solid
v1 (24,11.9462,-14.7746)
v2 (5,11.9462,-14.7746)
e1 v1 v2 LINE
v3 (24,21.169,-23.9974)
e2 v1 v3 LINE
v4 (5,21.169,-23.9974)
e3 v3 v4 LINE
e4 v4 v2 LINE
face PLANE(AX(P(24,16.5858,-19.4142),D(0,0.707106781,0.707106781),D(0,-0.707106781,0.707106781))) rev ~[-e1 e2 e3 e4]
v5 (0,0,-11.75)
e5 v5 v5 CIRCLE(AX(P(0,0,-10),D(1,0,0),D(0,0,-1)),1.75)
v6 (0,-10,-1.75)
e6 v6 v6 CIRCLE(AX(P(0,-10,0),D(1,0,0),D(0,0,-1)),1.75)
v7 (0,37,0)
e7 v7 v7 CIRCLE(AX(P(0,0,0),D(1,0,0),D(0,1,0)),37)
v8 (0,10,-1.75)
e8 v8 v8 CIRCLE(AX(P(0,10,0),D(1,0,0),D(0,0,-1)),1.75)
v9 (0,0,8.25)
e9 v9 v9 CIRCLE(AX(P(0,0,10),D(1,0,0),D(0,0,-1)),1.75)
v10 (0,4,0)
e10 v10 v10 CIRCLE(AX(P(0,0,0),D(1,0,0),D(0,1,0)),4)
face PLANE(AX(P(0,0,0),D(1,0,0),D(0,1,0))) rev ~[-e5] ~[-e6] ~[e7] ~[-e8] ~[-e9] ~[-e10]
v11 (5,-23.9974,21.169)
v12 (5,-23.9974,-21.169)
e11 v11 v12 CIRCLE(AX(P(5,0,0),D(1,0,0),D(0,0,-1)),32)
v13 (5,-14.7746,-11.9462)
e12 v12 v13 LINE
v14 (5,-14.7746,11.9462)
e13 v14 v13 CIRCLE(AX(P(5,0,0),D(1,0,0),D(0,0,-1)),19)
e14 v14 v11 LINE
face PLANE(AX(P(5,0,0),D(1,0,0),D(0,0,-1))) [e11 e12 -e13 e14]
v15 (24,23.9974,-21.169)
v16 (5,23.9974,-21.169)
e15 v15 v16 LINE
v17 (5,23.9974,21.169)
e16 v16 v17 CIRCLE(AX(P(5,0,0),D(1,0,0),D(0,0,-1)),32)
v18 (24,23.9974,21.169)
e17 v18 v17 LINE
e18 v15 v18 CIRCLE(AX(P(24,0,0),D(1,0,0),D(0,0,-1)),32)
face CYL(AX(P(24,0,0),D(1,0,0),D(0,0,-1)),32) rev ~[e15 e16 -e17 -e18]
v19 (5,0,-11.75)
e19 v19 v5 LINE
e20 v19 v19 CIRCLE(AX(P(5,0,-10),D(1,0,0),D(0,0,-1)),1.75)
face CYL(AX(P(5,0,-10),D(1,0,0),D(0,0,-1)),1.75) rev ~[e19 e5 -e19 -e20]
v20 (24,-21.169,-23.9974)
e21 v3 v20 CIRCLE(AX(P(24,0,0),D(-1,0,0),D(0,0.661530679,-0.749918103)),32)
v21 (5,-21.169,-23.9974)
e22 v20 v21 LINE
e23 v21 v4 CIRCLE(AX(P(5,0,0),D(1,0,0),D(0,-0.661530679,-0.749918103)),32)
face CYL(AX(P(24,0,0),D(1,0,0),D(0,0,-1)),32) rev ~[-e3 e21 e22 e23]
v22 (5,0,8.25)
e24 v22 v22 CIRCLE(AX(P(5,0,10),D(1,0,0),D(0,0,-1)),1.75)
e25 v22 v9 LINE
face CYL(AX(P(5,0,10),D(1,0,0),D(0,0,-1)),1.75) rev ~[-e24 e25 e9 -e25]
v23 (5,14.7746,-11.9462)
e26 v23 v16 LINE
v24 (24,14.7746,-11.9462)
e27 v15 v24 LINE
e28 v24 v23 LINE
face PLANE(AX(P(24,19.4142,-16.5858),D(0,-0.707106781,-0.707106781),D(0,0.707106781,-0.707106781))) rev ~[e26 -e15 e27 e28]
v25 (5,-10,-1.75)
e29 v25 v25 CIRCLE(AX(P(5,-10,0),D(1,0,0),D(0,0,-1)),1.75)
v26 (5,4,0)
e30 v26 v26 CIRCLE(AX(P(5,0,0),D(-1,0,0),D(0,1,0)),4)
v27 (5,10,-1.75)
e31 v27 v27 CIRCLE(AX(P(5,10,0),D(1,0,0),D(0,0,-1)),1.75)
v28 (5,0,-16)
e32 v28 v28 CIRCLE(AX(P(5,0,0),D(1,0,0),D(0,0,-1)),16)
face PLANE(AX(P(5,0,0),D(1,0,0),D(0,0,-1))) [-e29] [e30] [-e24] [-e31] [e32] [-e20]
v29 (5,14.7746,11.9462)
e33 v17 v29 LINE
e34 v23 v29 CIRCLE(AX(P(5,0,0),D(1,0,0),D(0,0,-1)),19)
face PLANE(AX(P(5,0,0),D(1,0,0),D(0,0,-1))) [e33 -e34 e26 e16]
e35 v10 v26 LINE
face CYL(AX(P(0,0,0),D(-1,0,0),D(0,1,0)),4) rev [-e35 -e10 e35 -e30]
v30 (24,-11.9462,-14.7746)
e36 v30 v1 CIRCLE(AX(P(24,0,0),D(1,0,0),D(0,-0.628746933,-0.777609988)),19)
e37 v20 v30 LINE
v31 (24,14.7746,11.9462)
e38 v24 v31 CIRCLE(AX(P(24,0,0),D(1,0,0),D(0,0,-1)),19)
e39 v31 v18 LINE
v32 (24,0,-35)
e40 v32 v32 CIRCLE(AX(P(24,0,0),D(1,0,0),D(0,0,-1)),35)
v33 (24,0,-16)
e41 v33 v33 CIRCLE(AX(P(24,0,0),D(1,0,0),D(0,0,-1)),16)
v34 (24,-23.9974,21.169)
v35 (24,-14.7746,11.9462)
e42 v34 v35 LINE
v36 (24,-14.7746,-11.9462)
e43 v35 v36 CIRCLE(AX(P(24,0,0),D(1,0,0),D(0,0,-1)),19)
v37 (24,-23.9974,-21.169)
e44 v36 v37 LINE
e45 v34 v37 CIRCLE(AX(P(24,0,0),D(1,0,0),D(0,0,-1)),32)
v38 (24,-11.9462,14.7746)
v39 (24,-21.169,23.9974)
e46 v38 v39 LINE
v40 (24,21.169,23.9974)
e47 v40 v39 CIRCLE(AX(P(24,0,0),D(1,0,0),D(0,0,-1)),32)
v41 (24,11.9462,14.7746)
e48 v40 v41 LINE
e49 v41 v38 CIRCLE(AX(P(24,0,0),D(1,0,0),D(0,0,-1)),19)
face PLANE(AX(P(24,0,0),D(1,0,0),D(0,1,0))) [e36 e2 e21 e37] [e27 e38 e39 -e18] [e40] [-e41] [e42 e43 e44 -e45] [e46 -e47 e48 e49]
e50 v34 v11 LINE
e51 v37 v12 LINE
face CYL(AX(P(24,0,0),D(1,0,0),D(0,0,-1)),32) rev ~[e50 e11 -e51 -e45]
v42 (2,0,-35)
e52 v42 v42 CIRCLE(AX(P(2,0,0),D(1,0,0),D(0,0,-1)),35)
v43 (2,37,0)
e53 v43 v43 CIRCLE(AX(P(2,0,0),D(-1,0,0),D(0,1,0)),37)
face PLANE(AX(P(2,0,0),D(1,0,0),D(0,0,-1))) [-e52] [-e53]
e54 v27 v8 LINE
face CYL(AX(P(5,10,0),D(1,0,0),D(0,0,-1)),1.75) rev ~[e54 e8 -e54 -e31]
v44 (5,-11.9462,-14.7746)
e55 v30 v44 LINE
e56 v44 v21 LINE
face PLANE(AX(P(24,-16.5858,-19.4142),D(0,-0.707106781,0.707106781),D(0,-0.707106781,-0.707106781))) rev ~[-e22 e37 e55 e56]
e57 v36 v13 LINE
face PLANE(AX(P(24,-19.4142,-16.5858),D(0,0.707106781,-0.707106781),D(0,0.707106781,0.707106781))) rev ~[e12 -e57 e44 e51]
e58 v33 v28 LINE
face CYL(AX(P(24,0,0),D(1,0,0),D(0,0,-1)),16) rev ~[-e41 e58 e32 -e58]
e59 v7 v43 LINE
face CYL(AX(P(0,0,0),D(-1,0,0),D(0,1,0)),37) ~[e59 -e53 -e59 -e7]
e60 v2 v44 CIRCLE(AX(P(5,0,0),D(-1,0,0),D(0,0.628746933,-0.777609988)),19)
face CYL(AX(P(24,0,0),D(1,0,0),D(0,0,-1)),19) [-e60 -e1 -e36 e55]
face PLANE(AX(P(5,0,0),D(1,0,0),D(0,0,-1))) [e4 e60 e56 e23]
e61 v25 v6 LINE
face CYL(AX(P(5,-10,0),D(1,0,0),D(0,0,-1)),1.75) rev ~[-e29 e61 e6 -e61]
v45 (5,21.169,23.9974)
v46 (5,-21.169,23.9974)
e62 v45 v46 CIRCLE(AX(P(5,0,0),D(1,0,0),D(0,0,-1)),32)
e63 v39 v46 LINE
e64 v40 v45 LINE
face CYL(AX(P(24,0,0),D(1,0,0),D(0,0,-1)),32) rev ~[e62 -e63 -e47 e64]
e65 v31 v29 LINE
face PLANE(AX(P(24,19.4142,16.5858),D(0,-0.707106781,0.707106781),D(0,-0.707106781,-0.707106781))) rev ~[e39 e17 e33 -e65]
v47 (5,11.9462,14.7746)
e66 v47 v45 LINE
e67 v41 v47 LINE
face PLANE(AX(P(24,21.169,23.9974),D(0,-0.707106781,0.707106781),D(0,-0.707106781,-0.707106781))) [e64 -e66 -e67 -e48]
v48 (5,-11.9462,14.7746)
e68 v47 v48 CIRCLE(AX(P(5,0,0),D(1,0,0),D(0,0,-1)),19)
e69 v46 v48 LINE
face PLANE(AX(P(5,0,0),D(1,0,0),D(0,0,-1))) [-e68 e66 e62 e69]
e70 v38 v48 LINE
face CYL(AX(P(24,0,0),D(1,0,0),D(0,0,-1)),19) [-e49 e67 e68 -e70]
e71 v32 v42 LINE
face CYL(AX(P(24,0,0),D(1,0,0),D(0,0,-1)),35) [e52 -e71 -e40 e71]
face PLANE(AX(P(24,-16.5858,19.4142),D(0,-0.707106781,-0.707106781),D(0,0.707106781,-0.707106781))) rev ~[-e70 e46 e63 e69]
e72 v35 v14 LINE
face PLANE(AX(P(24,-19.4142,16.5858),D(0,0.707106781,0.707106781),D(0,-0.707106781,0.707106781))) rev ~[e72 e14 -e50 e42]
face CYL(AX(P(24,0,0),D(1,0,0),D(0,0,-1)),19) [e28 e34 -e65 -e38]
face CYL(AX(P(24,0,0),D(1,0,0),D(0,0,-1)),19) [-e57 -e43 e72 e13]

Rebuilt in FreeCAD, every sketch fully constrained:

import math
import FreeCAD as App
import Part
import Sketcher

V = App.Vector

doc = App.newDocument("Part")
body = doc.addObject("PartDesign::Body", "Body")

# Sketch on YZ plane
sketch1 = body.newObject("Sketcher::SketchObject", "Sketch")
sketch1.AttachmentSupport = (doc.getObject("YZ_Plane"), [""])
sketch1.MapMode = "FlatFace"
sketch1.addGeometry(Part.Circle(V(0, 0, 0), V(0, 0, 1), 37), False)
sketch1.addGeometry(Part.Circle(V(0, 0, 0), V(0, 0, 1), 4), False)
sketch1.addConstraint(Sketcher.Constraint("Coincident", 0, 3, -1, 1))
sketch1.addConstraint(Sketcher.Constraint("Coincident", 1, 3, -1, 1))
sketch1.addConstraint(Sketcher.Constraint("Diameter", 0, 74.0))
sketch1.addConstraint(Sketcher.Constraint("Diameter", 1, 8.0))
pad1 = body.newObject("PartDesign::Pad", "Pad")
pad1.Profile = sketch1
pad1.Length = 24

# Sketch on YZ plane
sketch2 = body.newObject("Sketcher::SketchObject", "Sketch001")
sketch2.AttachmentSupport = (doc.getObject("YZ_Plane"), [""])
sketch2.MapMode = "FlatFace"
sketch2.AttachmentOffset = App.Placement(V(0, 0, 24), App.Rotation())
sketch2.addGeometry(Part.Circle(V(0, 0, 0), V(0, 0, 1), 16), False)
sketch2.addConstraint(Sketcher.Constraint("Coincident", 0, 3, -1, 1))
sketch2.addConstraint(Sketcher.Constraint("Diameter", 0, 32.0))
pocket1 = body.newObject("PartDesign::Pocket", "Pocket")
pocket1.Profile = sketch2
pocket1.Length = 19

# Sketch on YZ plane
sketch3 = body.newObject("Sketcher::SketchObject", "Sketch002")
sketch3.AttachmentSupport = (doc.getObject("YZ_Plane"), [""])
sketch3.MapMode = "FlatFace"
sketch3.AttachmentOffset = App.Placement(V(0, 0, 5), App.Rotation())
sketch3.addGeometry(Part.Circle(V(10, 0, 0), V(0, 0, 1), 1.8), False)
sketch3.addGeometry(Part.Circle(V(0, -10, 0), V(0, 0, 1), 1.8), False)
sketch3.addGeometry(Part.Circle(V(-10, 0, 0), V(0, 0, 1), 1.8), False)
sketch3.addGeometry(Part.Circle(V(0, 10, 0), V(0, 0, 1), 1.8), False)
sketch3.addConstraint(Sketcher.Constraint("Equal", 0, 1))
sketch3.addConstraint(Sketcher.Constraint("Equal", 1, 2))
sketch3.addConstraint(Sketcher.Constraint("Equal", 2, 3))
sketch3.addConstraint(Sketcher.Constraint("Symmetric", 0, 3, 2, 3, -1, 1))
sketch3.addConstraint(Sketcher.Constraint("Symmetric", 1, 3, 3, 3, -1, 1))
sketch3.addConstraint(Sketcher.Constraint("PointOnObject", 0, 3, -1))
sketch3.addConstraint(Sketcher.Constraint("PointOnObject", 1, 3, -2))
sketch3.addConstraint(Sketcher.Constraint("Diameter", 0, 3.5))
sketch3.addConstraint(Sketcher.Constraint("DistanceX", -1, 1, 0, 3, 10.0))
sketch3.addConstraint(Sketcher.Constraint("DistanceY", 1, 3, -1, 1, 10.0))
pocket2 = body.newObject("PartDesign::Pocket", "Pocket001")
pocket2.Profile = sketch3
pocket2.Length = 19

# Sketch on YZ plane
sketch4 = body.newObject("Sketcher::SketchObject", "Sketch003")
sketch4.AttachmentSupport = (doc.getObject("YZ_Plane"), [""])
sketch4.MapMode = "FlatFace"
sketch4.AttachmentOffset = App.Placement(V(0, 0, 24), App.Rotation())
sketch4.addGeometry(Part.ArcOfCircle(Part.Circle(V(0, 0, 0), V(0, 0, 1), 19), math.radians(-129), math.radians(-51)), False)
sketch4.addGeometry(Part.LineSegment(V(-12, -15, 0), V(-21, -24, 0)), False)
sketch4.addGeometry(Part.ArcOfCircle(Part.Circle(V(0, 0, 0), V(0, 0, 1), 32), math.radians(-131), math.radians(-49)), False)
sketch4.addGeometry(Part.LineSegment(V(21, -24, 0), V(12, -15, 0)), False)
sketch4.addGeometry(Part.ArcOfCircle(Part.Circle(V(0, 0, 0), V(0, 0, 1), 19), math.radians(-39), math.radians(39)), False)
sketch4.addGeometry(Part.LineSegment(V(15, -12, 0), V(24, -21, 0)), False)
sketch4.addGeometry(Part.ArcOfCircle(Part.Circle(V(0, 0, 0), V(0, 0, 1), 32), math.radians(-41), math.radians(41)), False)
sketch4.addGeometry(Part.LineSegment(V(24, 21, 0), V(15, 12, 0)), False)
sketch4.addGeometry(Part.LineSegment(V(-24, -21, 0), V(-15, -12, 0)), False)
sketch4.addGeometry(Part.ArcOfCircle(Part.Circle(V(0, 0, 0), V(0, 0, 1), 19), math.radians(141), math.radians(219)), False)
sketch4.addGeometry(Part.LineSegment(V(-15, 12, 0), V(-24, 21, 0)), False)
sketch4.addGeometry(Part.ArcOfCircle(Part.Circle(V(0, 0, 0), V(0, 0, 1), 32), math.radians(139), math.radians(221)), False)
sketch4.addGeometry(Part.ArcOfCircle(Part.Circle(V(0, 0, 0), V(0, 0, 1), 19), math.radians(51), math.radians(129)), False)
sketch4.addGeometry(Part.LineSegment(V(12, 15, 0), V(21, 24, 0)), False)
sketch4.addGeometry(Part.ArcOfCircle(Part.Circle(V(0, 0, 0), V(0, 0, 1), 32), math.radians(49), math.radians(131)), False)
sketch4.addGeometry(Part.LineSegment(V(-21, 24, 0), V(-12, 15, 0)), False)
sketch4.addConstraint(Sketcher.Constraint("Coincident", 0, 1, 1, 1))
sketch4.addConstraint(Sketcher.Constraint("Coincident", 1, 2, 2, 1))
sketch4.addConstraint(Sketcher.Constraint("Coincident", 2, 2, 3, 1))
sketch4.addConstraint(Sketcher.Constraint("Coincident", 3, 2, 0, 2))
sketch4.addConstraint(Sketcher.Constraint("Coincident", 4, 1, 5, 1))
sketch4.addConstraint(Sketcher.Constraint("Coincident", 5, 2, 6, 1))
sketch4.addConstraint(Sketcher.Constraint("Coincident", 6, 2, 7, 1))
sketch4.addConstraint(Sketcher.Constraint("Coincident", 7, 2, 4, 2))
sketch4.addConstraint(Sketcher.Constraint("Coincident", 8, 2, 9, 2))
sketch4.addConstraint(Sketcher.Constraint("Coincident", 9, 1, 10, 1))
sketch4.addConstraint(Sketcher.Constraint("Coincident", 10, 2, 11, 1))
sketch4.addConstraint(Sketcher.Constraint("Coincident", 11, 2, 8, 1))
sketch4.addConstraint(Sketcher.Constraint("Coincident", 12, 1, 13, 1))
sketch4.addConstraint(Sketcher.Constraint("Coincident", 13, 2, 14, 1))
sketch4.addConstraint(Sketcher.Constraint("Coincident", 14, 2, 15, 1))
sketch4.addConstraint(Sketcher.Constraint("Coincident", 15, 2, 12, 2))
sketch4.addConstraint(Sketcher.Constraint("Coincident", 0, 3, -1, 1))
sketch4.addConstraint(Sketcher.Constraint("Coincident", 2, 3, -1, 1))
sketch4.addConstraint(Sketcher.Constraint("Coincident", 4, 3, -1, 1))
sketch4.addConstraint(Sketcher.Constraint("Coincident", 6, 3, -1, 1))
sketch4.addConstraint(Sketcher.Constraint("Coincident", 9, 3, -1, 1))
sketch4.addConstraint(Sketcher.Constraint("Coincident", 11, 3, -1, 1))
sketch4.addConstraint(Sketcher.Constraint("Coincident", 12, 3, -1, 1))
sketch4.addConstraint(Sketcher.Constraint("Coincident", 14, 3, -1, 1))
sketch4.addConstraint(Sketcher.Constraint("Equal", 0, 4))
sketch4.addConstraint(Sketcher.Constraint("Equal", 2, 6))
sketch4.addConstraint(Sketcher.Constraint("Equal", 4, 9))
sketch4.addConstraint(Sketcher.Constraint("Equal", 6, 11))
sketch4.addConstraint(Sketcher.Constraint("Equal", 9, 12))
sketch4.addConstraint(Sketcher.Constraint("Equal", 11, 14))
sketch4.addConstraint(Sketcher.Constraint("Perpendicular", 1, 3))
sketch4.addConstraint(Sketcher.Constraint("Parallel", 3, 5))
sketch4.addConstraint(Sketcher.Constraint("Perpendicular", 5, 7))
sketch4.addConstraint(Sketcher.Constraint("Parallel", 7, 8))
sketch4.addConstraint(Sketcher.Constraint("Perpendicular", 8, 10))
sketch4.addConstraint(Sketcher.Constraint("Perpendicular", 10, 13))
sketch4.addConstraint(Sketcher.Constraint("Perpendicular", 13, 15))
sketch4.addConstraint(Sketcher.Constraint("Horizontal", 1, 2, 2, 2))
sketch4.addConstraint(Sketcher.Constraint("Horizontal", 0, 1, 3, 2))
sketch4.addConstraint(Sketcher.Constraint("Horizontal", 4, 1, 8, 2))
sketch4.addConstraint(Sketcher.Constraint("Horizontal", 7, 2, 9, 1))
sketch4.addConstraint(Sketcher.Constraint("Horizontal", 13, 2, 14, 2))
sketch4.addConstraint(Sketcher.Constraint("Vertical", 5, 2, 6, 2))
sketch4.addConstraint(Sketcher.Constraint("Vertical", 3, 2, 12, 1))
sketch4.addConstraint(Sketcher.Constraint("Equal", 3, 5))
sketch4.addConstraint(Sketcher.Constraint("Radius", 0, 19.0))
sketch4.addConstraint(Sketcher.Constraint("Radius", 2, 32.0))
sketch4.addConstraint(Sketcher.Constraint("Distance", 1, 13.043))
pocket3 = body.newObject("PartDesign::Pocket", "Pocket002")
pocket3.Profile = sketch4
pocket3.Length = 19

# Sketch on YZ plane
sketch5 = body.newObject("Sketcher::SketchObject", "Sketch004")
sketch5.AttachmentSupport = (doc.getObject("YZ_Plane"), [""])
sketch5.MapMode = "FlatFace"
sketch5.AttachmentOffset = App.Placement(V(0, 0, 24), App.Rotation())
sketch5.addGeometry(Part.Circle(V(0, 0, 0), V(0, 0, 1), 37), False)
sketch5.addGeometry(Part.Circle(V(0, 0, 0), V(0, 0, 1), 35), False)
sketch5.addConstraint(Sketcher.Constraint("Coincident", 0, 3, -1, 1))
sketch5.addConstraint(Sketcher.Constraint("Coincident", 1, 3, -1, 1))
sketch5.addConstraint(Sketcher.Constraint("Diameter", 1, 70.0))
sketch5.addConstraint(Sketcher.Constraint("Diameter", 0, 74.0))
pocket4 = body.newObject("PartDesign::Pocket", "Pocket003")
pocket4.Profile = sketch5
pocket4.Length = 22

doc.recompute()
